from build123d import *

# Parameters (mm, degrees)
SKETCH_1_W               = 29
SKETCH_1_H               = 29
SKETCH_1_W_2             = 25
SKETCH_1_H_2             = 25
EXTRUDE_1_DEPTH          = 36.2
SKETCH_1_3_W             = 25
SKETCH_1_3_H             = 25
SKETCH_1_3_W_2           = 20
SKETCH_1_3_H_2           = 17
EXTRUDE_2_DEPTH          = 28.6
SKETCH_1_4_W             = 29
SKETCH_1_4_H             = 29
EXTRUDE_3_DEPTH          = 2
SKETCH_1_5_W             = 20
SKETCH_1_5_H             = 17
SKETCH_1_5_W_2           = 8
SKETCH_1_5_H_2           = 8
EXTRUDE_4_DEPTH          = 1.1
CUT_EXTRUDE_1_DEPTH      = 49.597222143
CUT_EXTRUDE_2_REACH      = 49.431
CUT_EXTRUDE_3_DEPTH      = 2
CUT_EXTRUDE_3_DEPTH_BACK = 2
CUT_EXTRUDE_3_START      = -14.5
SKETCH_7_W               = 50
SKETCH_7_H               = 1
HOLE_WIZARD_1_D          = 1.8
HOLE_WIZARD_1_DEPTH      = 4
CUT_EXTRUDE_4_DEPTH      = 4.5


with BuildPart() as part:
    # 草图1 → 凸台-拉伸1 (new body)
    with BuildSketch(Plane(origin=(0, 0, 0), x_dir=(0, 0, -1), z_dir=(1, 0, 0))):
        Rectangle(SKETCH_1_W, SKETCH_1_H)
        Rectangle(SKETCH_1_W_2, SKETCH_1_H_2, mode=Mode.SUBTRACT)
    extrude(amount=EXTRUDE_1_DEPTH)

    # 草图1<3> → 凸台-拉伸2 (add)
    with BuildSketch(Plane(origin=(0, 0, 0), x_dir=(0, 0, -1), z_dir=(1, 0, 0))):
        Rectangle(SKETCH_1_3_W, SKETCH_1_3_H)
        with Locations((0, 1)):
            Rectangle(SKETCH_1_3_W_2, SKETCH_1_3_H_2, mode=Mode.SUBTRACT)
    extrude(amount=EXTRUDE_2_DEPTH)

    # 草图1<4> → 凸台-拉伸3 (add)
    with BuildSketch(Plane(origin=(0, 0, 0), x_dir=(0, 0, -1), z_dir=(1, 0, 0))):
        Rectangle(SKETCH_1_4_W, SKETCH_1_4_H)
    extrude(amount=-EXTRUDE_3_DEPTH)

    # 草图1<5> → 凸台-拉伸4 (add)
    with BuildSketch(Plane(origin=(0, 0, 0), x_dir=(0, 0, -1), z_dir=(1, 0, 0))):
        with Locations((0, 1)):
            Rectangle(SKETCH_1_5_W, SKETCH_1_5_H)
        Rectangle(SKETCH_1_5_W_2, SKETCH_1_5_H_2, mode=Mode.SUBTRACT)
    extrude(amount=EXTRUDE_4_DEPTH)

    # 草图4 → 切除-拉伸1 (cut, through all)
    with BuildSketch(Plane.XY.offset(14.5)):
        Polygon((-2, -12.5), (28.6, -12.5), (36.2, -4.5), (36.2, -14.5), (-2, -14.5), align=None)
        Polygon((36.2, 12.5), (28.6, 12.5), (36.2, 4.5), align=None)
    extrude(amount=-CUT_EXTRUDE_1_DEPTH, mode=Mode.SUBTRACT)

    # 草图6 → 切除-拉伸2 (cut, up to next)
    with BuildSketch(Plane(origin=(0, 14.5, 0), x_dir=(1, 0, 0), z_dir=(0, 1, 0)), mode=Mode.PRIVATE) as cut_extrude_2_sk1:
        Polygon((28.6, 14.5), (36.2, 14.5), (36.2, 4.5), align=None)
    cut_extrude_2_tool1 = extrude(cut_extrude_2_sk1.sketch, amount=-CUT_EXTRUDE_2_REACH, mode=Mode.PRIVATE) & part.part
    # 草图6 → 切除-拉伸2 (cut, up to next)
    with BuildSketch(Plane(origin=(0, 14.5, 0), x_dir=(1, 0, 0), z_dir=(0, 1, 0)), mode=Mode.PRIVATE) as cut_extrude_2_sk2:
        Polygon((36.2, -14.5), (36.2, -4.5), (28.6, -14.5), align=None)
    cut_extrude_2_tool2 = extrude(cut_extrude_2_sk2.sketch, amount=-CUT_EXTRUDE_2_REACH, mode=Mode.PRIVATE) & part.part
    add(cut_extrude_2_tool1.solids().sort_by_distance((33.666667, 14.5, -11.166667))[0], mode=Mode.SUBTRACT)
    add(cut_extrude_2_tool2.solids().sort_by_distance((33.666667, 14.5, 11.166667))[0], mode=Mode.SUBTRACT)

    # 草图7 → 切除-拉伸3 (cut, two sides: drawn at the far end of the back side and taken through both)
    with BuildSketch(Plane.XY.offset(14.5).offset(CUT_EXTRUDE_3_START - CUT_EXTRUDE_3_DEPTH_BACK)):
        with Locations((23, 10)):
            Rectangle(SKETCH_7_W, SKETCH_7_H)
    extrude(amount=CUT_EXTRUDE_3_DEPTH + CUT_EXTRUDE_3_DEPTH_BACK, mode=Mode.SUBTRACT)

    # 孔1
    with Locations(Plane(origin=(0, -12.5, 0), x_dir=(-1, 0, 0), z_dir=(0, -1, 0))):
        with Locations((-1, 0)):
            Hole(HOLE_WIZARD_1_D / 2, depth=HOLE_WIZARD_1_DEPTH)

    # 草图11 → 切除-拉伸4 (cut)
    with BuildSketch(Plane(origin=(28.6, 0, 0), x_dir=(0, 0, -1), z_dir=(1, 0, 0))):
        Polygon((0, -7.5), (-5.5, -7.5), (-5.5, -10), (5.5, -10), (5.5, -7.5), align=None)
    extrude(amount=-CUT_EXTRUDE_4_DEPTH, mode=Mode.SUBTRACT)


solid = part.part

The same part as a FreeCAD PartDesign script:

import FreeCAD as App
import Part
import Sketcher
Q = App.Units.Quantity

doc = App.newDocument("Part")
body = doc.addObject("PartDesign::Body", "Body")

# Sketch on YZ plane
sketch1 = body.newObject("Sketcher::SketchObject", "Sketch")
sketch1.AttachmentSupport = (doc.getObject("YZ_Plane"), [""])
sketch1.MapMode = "FlatFace"
sketch1.addGeometry(Part.LineSegment(App.Vector(14, 14, 0), App.Vector(-14, 14, 0)), False)
sketch1.addGeometry(Part.LineSegment(App.Vector(-14, 14, 0), App.Vector(-14, -14, 0)), False)
sketch1.addGeometry(Part.LineSegment(App.Vector(-14, -14, 0), App.Vector(14, -14, 0)), False)
sketch1.addGeometry(Part.LineSegment(App.Vector(14, -14, 0), App.Vector(14, 14, 0)), False)
sketch1.addGeometry(Part.LineSegment(App.Vector(-12, -12, 0), App.Vector(-12, 12, 0)), False)
sketch1.addGeometry(Part.LineSegment(App.Vector(-12, 12, 0), App.Vector(12, 12, 0)), False)
sketch1.addGeometry(Part.LineSegment(App.Vector(12, 12, 0), App.Vector(12, -12, 0)), False)
sketch1.addGeometry(Part.LineSegment(App.Vector(12, -12, 0), App.Vector(-12, -12, 0)), False)
sketch1.addConstraint(Sketcher.Constraint("Coincident", 0, 2, 1, 1))
sketch1.addConstraint(Sketcher.Constraint("Coincident", 1, 2, 2, 1))
sketch1.addConstraint(Sketcher.Constraint("Coincident", 2, 2, 3, 1))
sketch1.addConstraint(Sketcher.Constraint("Coincident", 3, 2, 0, 1))
sketch1.addConstraint(Sketcher.Constraint("Coincident", 4, 2, 5, 1))
sketch1.addConstraint(Sketcher.Constraint("Coincident", 5, 2, 6, 1))
sketch1.addConstraint(Sketcher.Constraint("Coincident", 6, 2, 7, 1))
sketch1.addConstraint(Sketcher.Constraint("Coincident", 7, 2, 4, 1))
sketch1.addConstraint(Sketcher.Constraint("Horizontal", 0))
sketch1.addConstraint(Sketcher.Constraint("Vertical", 1))
sketch1.addConstraint(Sketcher.Constraint("Horizontal", 2))
sketch1.addConstraint(Sketcher.Constraint("Vertical", 3))
sketch1.addConstraint(Sketcher.Constraint("Vertical", 4))
sketch1.addConstraint(Sketcher.Constraint("Horizontal", 5))
sketch1.addConstraint(Sketcher.Constraint("Vertical", 6))
sketch1.addConstraint(Sketcher.Constraint("Horizontal", 7))
sketch1.addConstraint(Sketcher.Constraint("Symmetric", 0, 2, 2, 2, -1, 1))
sketch1.addConstraint(Sketcher.Constraint("Symmetric", 4, 2, 6, 2, -1, 1))
sketch1.addConstraint(Sketcher.Constraint("Equal", 2, 1))
sketch1.addConstraint(Sketcher.Constraint("Equal", 7, 4))
sketch1.addConstraint(Sketcher.Constraint("DistanceX", 0, 2, 0, 1, Q("29 mm")))
sketch1.addConstraint(Sketcher.Constraint("DistanceX", 5, 1, 5, 2, Q("25 mm")))
pad1 = body.newObject("PartDesign::Pad", "Pad")
pad1.Profile = sketch1
pad1.Length = 36.2

# Sketch on YZ plane
sketch2 = body.newObject("Sketcher::SketchObject", "Sketch001")
sketch2.AttachmentSupport = (doc.getObject("YZ_Plane"), [""])
sketch2.MapMode = "FlatFace"
sketch2.addGeometry(Part.LineSegment(App.Vector(12, 12, 0), App.Vector(-12, 12, 0)), False)
sketch2.addGeometry(Part.LineSegment(App.Vector(-12, 12, 0), App.Vector(-12, -12, 0)), False)
sketch2.addGeometry(Part.LineSegment(App.Vector(-12, -12, 0), App.Vector(12, -12, 0)), False)
sketch2.addGeometry(Part.LineSegment(App.Vector(12, -12, 0), App.Vector(12, 12, 0)), False)
sketch2.addGeometry(Part.LineSegment(App.Vector(-8, -10, 0), App.Vector(-8, 10, 0)), False)
sketch2.addGeometry(Part.LineSegment(App.Vector(-8, 10, 0), App.Vector(10, 10, 0)), False)
sketch2.addGeometry(Part.LineSegment(App.Vector(10, 10, 0), App.Vector(10, -10, 0)), False)
sketch2.addGeometry(Part.LineSegment(App.Vector(10, -10, 0), App.Vector(-8, -10, 0)), False)
sketch2.addConstraint(Sketcher.Constraint("Coincident", 0, 2, 1, 1))
sketch2.addConstraint(Sketcher.Constraint("Coincident", 1, 2, 2, 1))
sketch2.addConstraint(Sketcher.Constraint("Coincident", 2, 2, 3, 1))
sketch2.addConstraint(Sketcher.Constraint("Coincident", 3, 2, 0, 1))
sketch2.addConstraint(Sketcher.Constraint("Coincident", 4, 2, 5, 1))
sketch2.addConstraint(Sketcher.Constraint("Coincident", 5, 2, 6, 1))
sketch2.addConstraint(Sketcher.Constraint("Coincident", 6, 2, 7, 1))
sketch2.addConstraint(Sketcher.Constraint("Coincident", 7, 2, 4, 1))
sketch2.addConstraint(Sketcher.Constraint("Horizontal", 0))
sketch2.addConstraint(Sketcher.Constraint("Vertical", 1))
sketch2.addConstraint(Sketcher.Constraint("Horizontal", 2))
sketch2.addConstraint(Sketcher.Constraint("Vertical", 3))
sketch2.addConstraint(Sketcher.Constraint("Vertical", 4))
sketch2.addConstraint(Sketcher.Constraint("Horizontal", 5))
sketch2.addConstraint(Sketcher.Constraint("Vertical", 6))
sketch2.addConstraint(Sketcher.Constraint("Horizontal", 7))
sketch2.addConstraint(Sketcher.Constraint("Symmetric", 0, 2, 2, 2, -1, 1))
sketch2.addConstraint(Sketcher.Constraint("Equal", 2, 1))
sketch2.addConstraint(Sketcher.Constraint("DistanceX", 0, 2, 0, 1, Q("25 mm")))
sketch2.addConstraint(Sketcher.Constraint("DistanceX", 5, 1, 5, 2, Q("17 mm")))
sketch2.addConstraint(Sketcher.Constraint("DistanceY", 4, 1, 4, 2, Q("20 mm")))
sketch2.addConstraint(Sketcher.Constraint("DistanceY", -1, 1, 4, 2, Q("10 mm")))
sketch2.addConstraint(Sketcher.Constraint("DistanceX", 0, 2, 4, 2, Q("5 mm")))
pad2 = body.newObject("PartDesign::Pad", "Pad001")
pad2.Profile = sketch2
pad2.Length = 28.6

# Sketch on YZ plane
sketch3 = body.newObject("Sketcher::SketchObject", "Sketch002")
sketch3.AttachmentSupport = (doc.getObject("YZ_Plane"), [""])
sketch3.MapMode = "FlatFace"
sketch3.addGeometry(Part.LineSegment(App.Vector(14, 14, 0), App.Vector(-14, 14, 0)), False)
sketch3.addGeometry(Part.LineSegment(App.Vector(-14, 14, 0), App.Vector(-14, -14, 0)), False)
sketch3.addGeometry(Part.LineSegment(App.Vector(-14, -14, 0), App.Vector(14, -14, 0)), False)
sketch3.addGeometry(Part.LineSegment(App.Vector(14, -14, 0), App.Vector(14, 14, 0)), False)
sketch3.addConstraint(Sketcher.Constraint("Coincident", 0, 2, 1, 1))
sketch3.addConstraint(Sketcher.Constraint("Coincident", 1, 2, 2, 1))
sketch3.addConstraint(Sketcher.Constraint("Coincident", 2, 2, 3, 1))
sketch3.addConstraint(Sketcher.Constraint("Coincident", 3, 2, 0, 1))
sketch3.addConstraint(Sketcher.Constraint("Horizontal", 0))
sketch3.addConstraint(Sketcher.Constraint("Vertical", 1))
sketch3.addConstraint(Sketcher.Constraint("Horizontal", 2))
sketch3.addConstraint(Sketcher.Constraint("Vertical", 3))
sketch3.addConstraint(Sketcher.Constraint("Symmetric", 0, 2, 2, 2, -1, 1))
sketch3.addConstraint(Sketcher.Constraint("Equal", 2, 1))
sketch3.addConstraint(Sketcher.Constraint("DistanceX", 0, 2, 0, 1, Q("29 mm")))
pad3 = body.newObject("PartDesign::Pad", "Pad002")
pad3.Profile = sketch3
pad3.Length = 2
pad3.Reversed = True

# Sketch on YZ plane
sketch4 = body.newObject("Sketcher::SketchObject", "Sketch003")
sketch4.AttachmentSupport = (doc.getObject("YZ_Plane"), [""])
sketch4.MapMode = "FlatFace"
sketch4.addGeometry(Part.LineSegment(App.Vector(10, 10, 0), App.Vector(-8, 10, 0)), False)
sketch4.addGeometry(Part.LineSegment(App.Vector(-8, 10, 0), App.Vector(-8, -10, 0)), False)
sketch4.addGeometry(Part.LineSegment(App.Vector(-8, -10, 0), App.Vector(10, -10, 0)), False)
sketch4.addGeometry(Part.LineSegment(App.Vector(10, -10, 0), App.Vector(10, 10, 0)), False)
sketch4.addGeometry(Part.LineSegment(App.Vector(-4, -4, 0), App.Vector(-4, 4, 0)), False)
sketch4.addGeometry(Part.LineSegment(App.Vector(-4, 4, 0), App.Vector(4, 4, 0)), False)
sketch4.addGeometry(Part.LineSegment(App.Vector(4, 4, 0), App.Vector(4, -4, 0)), False)
sketch4.addGeometry(Part.LineSegment(App.Vector(4, -4, 0), App.Vector(-4, -4, 0)), False)
sketch4.addConstraint(Sketcher.Constraint("Coincident", 0, 2, 1, 1))
sketch4.addConstraint(Sketcher.Constraint("Coincident", 1, 2, 2, 1))
sketch4.addConstraint(Sketcher.Constraint("Coincident", 2, 2, 3, 1))
sketch4.addConstraint(Sketcher.Constraint("Coincident", 3, 2, 0, 1))
sketch4.addConstraint(Sketcher.Constraint("Coincident", 4, 2, 5, 1))
sketch4.addConstraint(Sketcher.Constraint("Coincident", 5, 2, 6, 1))
sketch4.addConstraint(Sketcher.Constraint("Coincident", 6, 2, 7, 1))
sketch4.addConstraint(Sketcher.Constraint("Coincident", 7, 2, 4, 1))
sketch4.addConstraint(Sketcher.Constraint("Horizontal", 0))
sketch4.addConstraint(Sketcher.Constraint("Vertical", 1))
sketch4.addConstraint(Sketcher.Constraint("Horizontal", 2))
sketch4.addConstraint(Sketcher.Constraint("Vertical", 3))
sketch4.addConstraint(Sketcher.Constraint("Vertical", 4))
sketch4.addConstraint(Sketcher.Constraint("Horizontal", 5))
sketch4.addConstraint(Sketcher.Constraint("Vertical", 6))
sketch4.addConstraint(Sketcher.Constraint("Horizontal", 7))
sketch4.addConstraint(Sketcher.Constraint("Symmetric", 4, 2, 6, 2, -1, 1))
sketch4.addConstraint(Sketcher.Constraint("Equal", 7, 4))
sketch4.addConstraint(Sketcher.Constraint("DistanceX", 0, 2, 0, 1, Q("17 mm")))
sketch4.addConstraint(Sketcher.Constraint("DistanceX", 5, 1, 5, 2, Q("8 mm")))
sketch4.addConstraint(Sketcher.Constraint("DistanceY", 1, 2, 1, 1, Q("20 mm")))
sketch4.addConstraint(Sketcher.Constraint("DistanceY", -1, 1, 0, 2, Q("10 mm")))
sketch4.addConstraint(Sketcher.Constraint("DistanceX", 0, 2, -1, 1, Q("7.5 mm")))
pad4 = body.newObject("PartDesign::Pad", "Pad003")
pad4.Profile = sketch4
pad4.Length = 1.1

# Sketch on XY plane
sketch5 = body.newObject("Sketcher::SketchObject", "Sketch004")
sketch5.AttachmentSupport = (doc.getObject("XY_Plane"), [""])
sketch5.MapMode = "FlatFace"
sketch5.AttachmentOffset = App.Placement(App.Vector(0, 0, 14.5), App.Rotation())
sketch5.addGeometry(Part.LineSegment(App.Vector(28.6, -12.5, 0), App.Vector(-2, -12.5, 0)), False)
sketch5.addGeometry(Part.LineSegment(App.Vector(-2, -12.5, 0), App.Vector(-2, -14.5, 0)), False)
sketch5.addGeometry(Part.LineSegment(App.Vector(-2, -14.5, 0), App.Vector(36.2, -14.5, 0)), False)
sketch5.addGeometry(Part.LineSegment(App.Vector(36.2, -14.5, 0), App.Vector(36.2, -4.5, 0)), False)
sketch5.addGeometry(Part.LineSegment(App.Vector(36.2, -4.5, 0), App.Vector(28.6, -12.5, 0)), False)
sketch5.addGeometry(Part.LineSegment(App.Vector(36.2, 12.5, 0), App.Vector(28.6, 12.5, 0)), False)
sketch5.addGeometry(Part.LineSegment(App.Vector(28.6, 12.5, 0), App.Vector(36.2, 4.5, 0)), False)
sketch5.addGeometry(Part.LineSegment(App.Vector(36.2, 4.5, 0), App.Vector(36.2, 12.5, 0)), False)
sketch5.addConstraint(Sketcher.Constraint("Coincident", 0, 2, 1, 1))
sketch5.addConstraint(Sketcher.Constraint("Coincident", 1, 2, 2, 1))
sketch5.addConstraint(Sketcher.Constraint("Coincident", 2, 2, 3, 1))
sketch5.addConstraint(Sketcher.Constraint("Coincident", 3, 2, 4, 1))
sketch5.addConstraint(Sketcher.Constraint("Coincident", 4, 2, 0, 1))
sketch5.addConstraint(Sketcher.Constraint("Coincident", 5, 2, 6, 1))
sketch5.addConstraint(Sketcher.Constraint("Coincident", 6, 2, 7, 1))
sketch5.addConstraint(Sketcher.Constraint("Coincident", 7, 2, 5, 1))
sketch5.addConstraint(Sketcher.Constraint("Horizontal", 0))
sketch5.addConstraint(Sketcher.Constraint("Vertical", 1))
sketch5.addConstraint(Sketcher.Constraint("Horizontal", 2))
sketch5.addConstraint(Sketcher.Constraint("Vertical", 3))
sketch5.addConstraint(Sketcher.Constraint("Horizontal", 5))
sketch5.addConstraint(Sketcher.Constraint("Vertical", 7))
sketch5.addConstraint(Sketcher.Constraint("Symmetric", 4, 2, 5, 2, -1))
sketch5.addConstraint(Sketcher.Constraint("Symmetric", 3, 2, 6, 2, -1))
sketch5.addConstraint(Sketcher.Constraint("DistanceY", 1, 2, 1, 1, Q("2 mm")))
sketch5.addConstraint(Sketcher.Constraint("DistanceY", 3, 1, 3, 2, Q("10 mm")))
sketch5.addConstraint(Sketcher.Constraint("DistanceX", 0, 2, 0, 1, Q("30.6 mm")))
sketch5.addConstraint(Sketcher.Constraint("DistanceX", 2, 1, 2, 2, Q("38.2 mm")))
sketch5.addConstraint(Sketcher.Constraint("DistanceX", 0, 2, -1, 1, Q("2 mm")))
sketch5.addConstraint(Sketcher.Constraint("DistanceY", 3, 2, 5, 2, Q("17 mm")))
pocket1 = body.newObject("PartDesign::Pocket", "Pocket")
pocket1.Profile = sketch5
pocket1.Type = "ThroughAll"

# Sketch on XZ plane
sketch6 = body.newObject("Sketcher::SketchObject", "Sketch005")
sketch6.AttachmentSupport = (doc.getObject("XZ_Plane"), [""])
sketch6.MapMode = "FlatFace"
sketch6.AttachmentOffset = App.Placement(App.Vector(0, 0, -14.5), App.Rotation())
sketch6.addGeometry(Part.LineSegment(App.Vector(36, -14, 0), App.Vector(29, -14, 0)), False)
sketch6.addGeometry(Part.LineSegment(App.Vector(29, -14, 0), App.Vector(36, -4, 0)), False)
sketch6.addGeometry(Part.LineSegment(App.Vector(36, -4, 0), App.Vector(36, -14, 0)), False)
sketch6.addConstraint(Sketcher.Constraint("Coincident", 0, 2, 1, 1))
sketch6.addConstraint(Sketcher.Constraint("Coincident", 1, 2, 2, 1))
sketch6.addConstraint(Sketcher.Constraint("Coincident", 2, 2, 0, 1))
sketch6.addConstraint(Sketcher.Constraint("Horizontal", 0))
sketch6.addConstraint(Sketcher.Constraint("Vertical", 2))
sketch6.addConstraint(Sketcher.Constraint("DistanceY", 2, 2, 2, 1, Q("10 mm")))
sketch6.addConstraint(Sketcher.Constraint("DistanceX", 0, 2, 0, 1, Q("7.6 mm")))
sketch6.addConstraint(Sketcher.Constraint("DistanceX", -1, 1, 0, 2, Q("28.6 mm")))
sketch6.addConstraint(Sketcher.Constraint("DistanceY", 0, 2, -1, 1, Q("14.5 mm")))
pocket2 = body.newObject("PartDesign::Pocket", "Pocket001")
pocket2.Profile = sketch6
pocket2.Type = "UpToFirst"
pocket2.Reversed = True

# Sketch on XZ plane
sketch7 = body.newObject("Sketcher::SketchObject", "Sketch006")
sketch7.AttachmentSupport = (doc.getObject("XZ_Plane"), [""])
sketch7.MapMode = "FlatFace"
sketch7.AttachmentOffset = App.Placement(App.Vector(0, 0, -14.5), App.Rotation())
sketch7.addGeometry(Part.LineSegment(App.Vector(36, 14, 0), App.Vector(36, 4, 0)), False)
sketch7.addGeometry(Part.LineSegment(App.Vector(36, 4, 0), App.Vector(29, 14, 0)), False)
sketch7.addGeometry(Part.LineSegment(App.Vector(29, 14, 0), App.Vector(36, 14, 0)), False)
sketch7.addConstraint(Sketcher.Constraint("Coincident", 0, 2, 1, 1))
sketch7.addConstraint(Sketcher.Constraint("Coincident", 1, 2, 2, 1))
sketch7.addConstraint(Sketcher.Constraint("Coincident", 2, 2, 0, 1))
sketch7.addConstraint(Sketcher.Constraint("Vertical", 0))
sketch7.addConstraint(Sketcher.Constraint("Horizontal", 2))
sketch7.addConstraint(Sketcher.Constraint("DistanceY", 0, 2, 0, 1, Q("10 mm")))
sketch7.addConstraint(Sketcher.Constraint("DistanceX", 2, 1, 2, 2, Q("7.6 mm")))
sketch7.addConstraint(Sketcher.Constraint("DistanceX", -1, 1, 0, 2, Q("36.2 mm")))
sketch7.addConstraint(Sketcher.Constraint("DistanceY", -1, 1, 0, 2, Q("4.5 mm")))
pocket3 = body.newObject("PartDesign::Pocket", "Pocket002")
pocket3.Profile = sketch7
pocket3.Type = "UpToFirst"
pocket3.Reversed = True

# Sketch on XY plane
sketch8 = body.newObject("Sketcher::SketchObject", "Sketch007")
sketch8.AttachmentSupport = (doc.getObject("XY_Plane"), [""])
sketch8.MapMode = "FlatFace"
sketch8.addGeometry(Part.LineSegment(App.Vector(-2, 10.5, 0), App.Vector(-2, 9.5, 0)), False)
sketch8.addGeometry(Part.LineSegment(App.Vector(-2, 9.5, 0), App.Vector(48, 9.5, 0)), False)
sketch8.addGeometry(Part.LineSegment(App.Vector(48, 9.5, 0), App.Vector(48, 10.5, 0)), False)
sketch8.addGeometry(Part.LineSegment(App.Vector(48, 10.5, 0), App.Vector(-2, 10.5, 0)), False)
sketch8.addConstraint(Sketcher.Constraint("Coincident", 0, 2, 1, 1))
sketch8.addConstraint(Sketcher.Constraint("Coincident", 1, 2, 2, 1))
sketch8.addConstraint(Sketcher.Constraint("Coincident", 2, 2, 3, 1))
sketch8.addConstraint(Sketcher.Constraint("Coincident", 3, 2, 0, 1))
sketch8.addConstraint(Sketcher.Constraint("Vertical", 0))
sketch8.addConstraint(Sketcher.Constraint("Horizontal", 1))
sketch8.addConstraint(Sketcher.Constraint("Vertical", 2))
sketch8.addConstraint(Sketcher.Constraint("Horizontal", 3))
sketch8.addConstraint(Sketcher.Constraint("DistanceX", 1, 1, 1, 2, Q("50 mm")))
sketch8.addConstraint(Sketcher.Constraint("DistanceY", 0, 2, 0, 1, Q("1 mm")))
sketch8.addConstraint(Sketcher.Constraint("DistanceX", 0, 2, -1, 1, Q("2 mm")))
sketch8.addConstraint(Sketcher.Constraint("DistanceY", -1, 1, 0, 2, Q("9.5 mm")))
pocket4 = body.newObject("PartDesign::Pocket", "Pocket003")
pocket4.Profile = sketch8
pocket4.Type = "TwoLengths"
pocket4.Length = 2
pocket4.Length2 = 2
pocket4.Reversed = True

# Sketch on XZ plane
sketch9 = body.newObject("Sketcher::SketchObject", "Sketch008")
sketch9.AttachmentSupport = (doc.getObject("XZ_Plane"), [""])
sketch9.MapMode = "FlatFace"
sketch9.AttachmentOffset = App.Placement(App.Vector(0, 0, 12.5), App.Rotation())
sketch9.addGeometry(Part.Circle(App.Vector(1, 0, 0), App.Vector(0, 0, 1), 0.9), False)
sketch9.addConstraint(Sketcher.Constraint("PointOnObject", 0, 3, -1))
sketch9.addConstraint(Sketcher.Constraint("Diameter", 0, Q("1.8 mm")))
sketch9.addConstraint(Sketcher.Constraint("DistanceX", -1, 1, 0, 3, Q("1 mm")))
doc.recompute()
hole = body.newObject("PartDesign::Hole", "Hole")
hole.Profile = sketch9
hole.ThreadType = "None"
hole.Diameter = 1.8
hole.DepthType = "Dimension"
hole.Depth = 4
hole.DrillPoint = "Flat"

# Sketch on YZ plane
sketch10 = body.newObject("Sketcher::SketchObject", "Sketch009")
sketch10.AttachmentSupport = (doc.getObject("YZ_Plane"), [""])
sketch10.MapMode = "FlatFace"
sketch10.AttachmentOffset = App.Placement(App.Vector(0, 0, 28.6), App.Rotation())
sketch10.addGeometry(Part.LineSegment(App.Vector(-7.5, 5.5, 0), App.Vector(-10, 5.5, 0)), False)
sketch10.addGeometry(Part.LineSegment(App.Vector(-10, 5.5, 0), App.Vector(-10, -5.5, 0)), False)
sketch10.addGeometry(Part.LineSegment(App.Vector(-10, -5.5, 0), App.Vector(-7.5, -5.5, 0)), False)
sketch10.addGeometry(Part.LineSegment(App.Vector(-7.5, -5.5, 0), App.Vector(-7.5, 5.5, 0)), False)
sketch10.addConstraint(Sketcher.Constraint("Coincident", 0, 2, 1, 1))
sketch10.addConstraint(Sketcher.Constraint("Coincident", 1, 2, 2, 1))
sketch10.addConstraint(Sketcher.Constraint("Coincident", 2, 2, 3, 1))
sketch10.addConstraint(Sketcher.Constraint("Coincident", 3, 2, 0, 1))
sketch10.addConstraint(Sketcher.Constraint("Horizontal", 0))
sketch10.addConstraint(Sketcher.Constraint("Vertical", 1))
sketch10.addConstraint(Sketcher.Constraint("Horizontal", 2))
sketch10.addConstraint(Sketcher.Constraint("Vertical", 3))
sketch10.addConstraint(Sketcher.Constraint("DistanceY", 1, 2, 1, 1, Q("11 mm")))
sketch10.addConstraint(Sketcher.Constraint("DistanceX", 0, 2, 0, 1, Q("2.5 mm")))
sketch10.addConstraint(Sketcher.Constraint("DistanceX", 0, 2, -1, 1, Q("10 mm")))
sketch10.addConstraint(Sketcher.Constraint("DistanceY", -1, 1, 0, 2, Q("5.5 mm")))
pocket5 = body.newObject("PartDesign::Pocket", "Pocket004")
pocket5.Profile = sketch10
pocket5.Length = 4.5

doc.recompute()
